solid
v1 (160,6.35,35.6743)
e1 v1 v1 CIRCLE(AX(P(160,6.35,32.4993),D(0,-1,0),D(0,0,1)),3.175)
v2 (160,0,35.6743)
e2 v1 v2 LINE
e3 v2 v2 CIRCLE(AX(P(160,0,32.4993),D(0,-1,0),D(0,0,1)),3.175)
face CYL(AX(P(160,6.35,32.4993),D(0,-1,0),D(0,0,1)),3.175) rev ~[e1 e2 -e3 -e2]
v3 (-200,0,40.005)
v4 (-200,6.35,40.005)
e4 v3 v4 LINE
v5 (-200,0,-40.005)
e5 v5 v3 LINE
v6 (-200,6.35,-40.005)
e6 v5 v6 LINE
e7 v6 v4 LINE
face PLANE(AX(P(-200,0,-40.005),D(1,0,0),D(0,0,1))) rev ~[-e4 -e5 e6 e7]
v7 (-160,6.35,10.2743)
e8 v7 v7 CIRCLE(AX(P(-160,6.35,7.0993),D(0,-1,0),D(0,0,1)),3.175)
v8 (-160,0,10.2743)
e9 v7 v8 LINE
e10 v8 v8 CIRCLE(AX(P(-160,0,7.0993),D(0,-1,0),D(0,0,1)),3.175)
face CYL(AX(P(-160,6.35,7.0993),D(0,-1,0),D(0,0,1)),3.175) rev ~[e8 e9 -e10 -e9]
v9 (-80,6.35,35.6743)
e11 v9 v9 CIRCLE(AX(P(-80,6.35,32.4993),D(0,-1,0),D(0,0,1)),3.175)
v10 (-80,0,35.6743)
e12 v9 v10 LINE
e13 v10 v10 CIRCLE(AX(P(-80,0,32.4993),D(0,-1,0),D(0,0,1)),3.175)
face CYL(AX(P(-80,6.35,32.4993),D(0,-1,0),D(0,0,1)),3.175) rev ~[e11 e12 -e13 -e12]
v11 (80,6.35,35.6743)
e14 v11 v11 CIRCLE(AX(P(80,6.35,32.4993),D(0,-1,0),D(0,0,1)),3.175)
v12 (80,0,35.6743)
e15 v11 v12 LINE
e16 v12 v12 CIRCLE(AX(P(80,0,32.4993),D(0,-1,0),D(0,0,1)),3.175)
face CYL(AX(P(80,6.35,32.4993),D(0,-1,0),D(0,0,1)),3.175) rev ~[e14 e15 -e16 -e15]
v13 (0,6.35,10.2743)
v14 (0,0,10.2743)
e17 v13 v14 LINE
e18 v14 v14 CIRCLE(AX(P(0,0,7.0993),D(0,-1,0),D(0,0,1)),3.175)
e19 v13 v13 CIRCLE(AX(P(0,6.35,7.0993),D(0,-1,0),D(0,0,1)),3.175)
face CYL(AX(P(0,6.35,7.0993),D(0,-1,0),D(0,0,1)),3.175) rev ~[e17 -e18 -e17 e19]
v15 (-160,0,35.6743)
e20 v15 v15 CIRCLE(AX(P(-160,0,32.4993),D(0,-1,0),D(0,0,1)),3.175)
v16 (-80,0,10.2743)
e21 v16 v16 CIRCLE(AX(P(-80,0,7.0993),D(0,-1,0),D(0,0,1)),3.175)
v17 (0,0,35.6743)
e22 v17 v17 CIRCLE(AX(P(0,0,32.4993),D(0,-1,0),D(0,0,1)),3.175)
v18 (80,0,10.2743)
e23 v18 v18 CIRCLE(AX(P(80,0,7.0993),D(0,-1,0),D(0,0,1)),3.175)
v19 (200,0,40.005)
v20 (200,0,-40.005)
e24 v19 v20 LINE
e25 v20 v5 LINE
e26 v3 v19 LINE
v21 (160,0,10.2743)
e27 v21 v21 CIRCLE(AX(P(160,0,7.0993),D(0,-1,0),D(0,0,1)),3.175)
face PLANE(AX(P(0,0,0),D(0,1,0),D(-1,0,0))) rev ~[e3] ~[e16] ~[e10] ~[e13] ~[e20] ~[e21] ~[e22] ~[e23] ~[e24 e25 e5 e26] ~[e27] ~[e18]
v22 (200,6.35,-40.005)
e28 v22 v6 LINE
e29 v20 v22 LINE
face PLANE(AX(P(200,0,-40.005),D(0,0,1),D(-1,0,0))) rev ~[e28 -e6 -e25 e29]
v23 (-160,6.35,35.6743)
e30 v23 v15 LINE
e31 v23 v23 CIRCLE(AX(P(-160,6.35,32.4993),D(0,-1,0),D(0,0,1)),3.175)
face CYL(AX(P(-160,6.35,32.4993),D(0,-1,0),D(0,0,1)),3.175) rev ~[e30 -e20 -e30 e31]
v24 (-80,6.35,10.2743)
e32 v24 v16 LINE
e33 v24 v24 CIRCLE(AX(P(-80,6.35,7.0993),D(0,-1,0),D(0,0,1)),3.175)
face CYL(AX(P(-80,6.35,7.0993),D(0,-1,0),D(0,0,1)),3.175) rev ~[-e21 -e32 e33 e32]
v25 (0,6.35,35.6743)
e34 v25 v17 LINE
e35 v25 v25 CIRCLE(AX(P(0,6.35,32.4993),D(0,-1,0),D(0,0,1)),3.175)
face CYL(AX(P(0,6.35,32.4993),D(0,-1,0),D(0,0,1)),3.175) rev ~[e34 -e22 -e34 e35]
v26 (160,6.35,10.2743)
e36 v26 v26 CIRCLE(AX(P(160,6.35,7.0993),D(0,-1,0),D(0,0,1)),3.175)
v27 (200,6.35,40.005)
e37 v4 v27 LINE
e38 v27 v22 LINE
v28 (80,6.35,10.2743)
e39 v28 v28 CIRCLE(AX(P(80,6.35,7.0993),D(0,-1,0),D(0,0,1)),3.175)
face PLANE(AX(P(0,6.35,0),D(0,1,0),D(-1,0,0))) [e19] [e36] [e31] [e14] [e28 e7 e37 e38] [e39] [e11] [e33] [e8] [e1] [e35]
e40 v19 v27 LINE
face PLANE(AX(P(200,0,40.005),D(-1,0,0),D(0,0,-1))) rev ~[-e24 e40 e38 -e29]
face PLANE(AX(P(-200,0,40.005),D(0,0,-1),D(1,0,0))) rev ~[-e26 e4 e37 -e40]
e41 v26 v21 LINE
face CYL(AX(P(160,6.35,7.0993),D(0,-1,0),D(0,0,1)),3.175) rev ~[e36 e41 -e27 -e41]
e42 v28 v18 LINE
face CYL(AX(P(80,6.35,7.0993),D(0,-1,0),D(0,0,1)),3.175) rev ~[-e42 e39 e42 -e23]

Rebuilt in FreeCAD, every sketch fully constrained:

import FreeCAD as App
import Part
import Sketcher
from FreeCAD import Vector
Q = App.Units.Quantity

doc = App.newDocument("Part")
body = doc.addObject("PartDesign::Body", "Body")

sketch1 = body.newObject("Sketcher::SketchObject", "Sketch")
sketch1.AttachmentSupport = (doc.getObject("XZ_Plane"), [""])
sketch1.MapMode = "FlatFace"
sketch1.addGeometry([
    Part.LineSegment(Vector(-200, -40, 0), Vector(-200, 40, 0)),
    Part.LineSegment(Vector(-200, 40, 0), Vector(200, 40, 0)),
    Part.LineSegment(Vector(200, 40, 0), Vector(200, -40, 0)),
    Part.LineSegment(Vector(200, -40, 0), Vector(-200, -40, 0)),
], False)
sketch1.addConstraint([
    Sketcher.Constraint("Coincident", 0, 2, 1, 1),
    Sketcher.Constraint("Coincident", 1, 2, 2, 1),
    Sketcher.Constraint("Coincident", 2, 2, 3, 1),
    Sketcher.Constraint("Coincident", 3, 2, 0, 1),
    Sketcher.Constraint("Vertical", 0),
    Sketcher.Constraint("Horizontal", 1),
    Sketcher.Constraint("Vertical", 2),
    Sketcher.Constraint("Horizontal", 3),
    Sketcher.Constraint("Symmetric", 0, 2, 2, 2, -1, 1),
    Sketcher.Constraint("DistanceY", 0, 1, 0, 2, Q("3.15 in")),
    Sketcher.Constraint("DistanceX", 1, 1, 1, 2, 400.0),
])
pad1 = body.newObject("PartDesign::Pad", "Pad")
pad1.Profile = sketch1
pad1.Length = Q("0.25 in")
pad1.Reversed = True

sketch2 = body.newObject("Sketcher::SketchObject", "Sketch001")
sketch2.AttachmentSupport = (doc.getObject("XZ_Plane"), [""])
sketch2.MapMode = "FlatFace"
sketch2.AttachmentOffset = App.Placement(Vector(0, 0, -0.25 * 25.4), App.Rotation())
sketch2.addGeometry([
    Part.Circle(Vector(-160, 7.1, 0), Vector(0, 0, 1), 3.2),
    Part.Circle(Vector(-80, 7.1, 0), Vector(0, 0, 1), 3.2),
    Part.Circle(Vector(0, 7.1, 0), Vector(0, 0, 1), 3.2),
    Part.Circle(Vector(80, 7.1, 0), Vector(0, 0, 1), 3.2),
    Part.Circle(Vector(160, 7.1, 0), Vector(0, 0, 1), 3.2),
    Part.Circle(Vector(-160, 32.5, 0), Vector(0, 0, 1), 3.2),
    Part.Circle(Vector(-80, 32.5, 0), Vector(0, 0, 1), 3.2),
    Part.Circle(Vector(0, 32.5, 0), Vector(0, 0, 1), 3.2),
    Part.Circle(Vector(80, 32.5, 0), Vector(0, 0, 1), 3.2),
    Part.Circle(Vector(160, 32.5, 0), Vector(0, 0, 1), 3.2),
], False)
sketch2.addConstraint([
    Sketcher.Constraint("Equal", 0, 1),
    Sketcher.Constraint("Equal", 1, 2),
    Sketcher.Constraint("Equal", 2, 3),
    Sketcher.Constraint("Equal", 3, 4),
    Sketcher.Constraint("Equal", 4, 5),
    Sketcher.Constraint("Equal", 5, 6),
    Sketcher.Constraint("Equal", 6, 7),
    Sketcher.Constraint("Equal", 7, 8),
    Sketcher.Constraint("Equal", 8, 9),
    Sketcher.Constraint("Symmetric", 1, 3, 3, 3, -2),
    Sketcher.Constraint("Symmetric", 0, 3, 4, 3, -2),
    Sketcher.Constraint("Symmetric", 6, 3, 8, 3, -2),
    Sketcher.Constraint("Symmetric", 5, 3, 9, 3, -2),
    Sketcher.Constraint("PointOnObject", 2, 3, -2),
    Sketcher.Constraint("PointOnObject", 7, 3, -2),
    Sketcher.Constraint("Horizontal", 0, 3, 1, 3),
    Sketcher.Constraint("Horizontal", 1, 3, 2, 3),
    Sketcher.Constraint("Horizontal", 5, 3, 6, 3),
    Sketcher.Constraint("Horizontal", 6, 3, 7, 3),
    Sketcher.Constraint("Vertical", 0, 3, 5, 3),
    Sketcher.Constraint("Vertical", 1, 3, 6, 3),
    Sketcher.Constraint("Diameter", 0, Q("0.25 in")),
    Sketcher.Constraint("DistanceY", 0, 3, 5, 3, Q("1 in")),
    Sketcher.Constraint("DistanceY", -1, 1, 0, 3, Q("0.2795 in")),
    Sketcher.Constraint("DistanceX", 1, 3, -1, 1, Q("3.1496 in")),
    Sketcher.Constraint("DistanceX", 0, 3, 1, 3, Q("3.1496 in")),
])
doc.recompute()
hole = body.newObject("PartDesign::Hole", "Hole")
hole.Profile = sketch2
hole.ThreadType = "None"
hole.Diameter = Q("0.25 in")
hole.DepthType = "Dimension"
hole.Depth = Q("1 in")
hole.DrillPoint = "Angled"
hole.DrillPointAngle = 118
hole.Reversed = True

doc.recompute()
